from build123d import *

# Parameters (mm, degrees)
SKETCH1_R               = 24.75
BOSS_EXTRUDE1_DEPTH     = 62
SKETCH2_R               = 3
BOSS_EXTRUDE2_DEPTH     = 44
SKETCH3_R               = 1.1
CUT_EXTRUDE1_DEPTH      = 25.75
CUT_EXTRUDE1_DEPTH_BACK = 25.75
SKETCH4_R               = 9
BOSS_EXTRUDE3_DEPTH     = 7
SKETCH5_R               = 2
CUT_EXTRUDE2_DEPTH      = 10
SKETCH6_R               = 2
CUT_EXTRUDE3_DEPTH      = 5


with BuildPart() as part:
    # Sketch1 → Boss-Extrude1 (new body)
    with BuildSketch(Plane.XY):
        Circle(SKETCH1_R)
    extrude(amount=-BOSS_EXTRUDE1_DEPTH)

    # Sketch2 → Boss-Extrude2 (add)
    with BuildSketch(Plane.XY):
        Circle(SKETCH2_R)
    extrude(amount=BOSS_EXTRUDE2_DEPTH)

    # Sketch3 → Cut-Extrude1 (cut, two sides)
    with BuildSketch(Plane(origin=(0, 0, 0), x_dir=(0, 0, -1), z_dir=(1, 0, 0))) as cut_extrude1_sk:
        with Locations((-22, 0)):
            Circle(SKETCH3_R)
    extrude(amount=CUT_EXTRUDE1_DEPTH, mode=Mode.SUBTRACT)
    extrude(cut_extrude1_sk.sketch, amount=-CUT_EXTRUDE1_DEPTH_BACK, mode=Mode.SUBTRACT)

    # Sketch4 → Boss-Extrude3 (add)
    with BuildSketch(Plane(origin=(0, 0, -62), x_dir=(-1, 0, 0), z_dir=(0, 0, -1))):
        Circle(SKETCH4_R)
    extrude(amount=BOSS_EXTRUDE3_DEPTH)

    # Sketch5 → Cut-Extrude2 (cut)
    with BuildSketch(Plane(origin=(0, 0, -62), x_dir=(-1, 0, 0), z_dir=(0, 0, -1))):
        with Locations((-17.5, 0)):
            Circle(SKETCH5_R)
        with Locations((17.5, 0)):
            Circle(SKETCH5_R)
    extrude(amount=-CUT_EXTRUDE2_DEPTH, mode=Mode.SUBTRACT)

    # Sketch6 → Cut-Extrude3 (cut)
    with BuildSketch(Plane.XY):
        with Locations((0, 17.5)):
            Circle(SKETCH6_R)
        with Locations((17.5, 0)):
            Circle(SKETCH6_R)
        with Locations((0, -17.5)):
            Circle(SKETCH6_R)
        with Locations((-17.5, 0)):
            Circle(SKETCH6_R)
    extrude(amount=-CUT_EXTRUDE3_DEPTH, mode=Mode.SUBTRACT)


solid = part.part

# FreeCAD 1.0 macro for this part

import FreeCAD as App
import Part
import Sketcher
from FreeCAD import Vector

doc = App.newDocument("Part")
body = doc.addObject("PartDesign::Body", "Body")

# Sketch on XY plane
sketch1 = body.newObject("Sketcher::SketchObject", "Sketch")
sketch1.AttachmentSupport = (doc.getObject("XY_Plane"), [""])
sketch1.MapMode = "FlatFace"
sketch1.addGeometry(Part.Circle(Vector(0, 0, 0), Vector(0, 0, 1), 25), False)
sketch1.addConstraint(Sketcher.Constraint("Coincident", 0, 3, -1, 1))
sketch1.addConstraint(Sketcher.Constraint("Diameter", 0, 49.5))
pad1 = body.newObject("PartDesign::Pad", "Pad")
pad1.Profile = sketch1
pad1.Length = 62
pad1.Reversed = True

# Sketch on XY plane
sketch2 = body.newObject("Sketcher::SketchObject", "Sketch001")
sketch2.AttachmentSupport = (doc.getObject("XY_Plane"), [""])
sketch2.MapMode = "FlatFace"
sketch2.addGeometry(Part.Circle(Vector(0, 0, 0), Vector(0, 0, 1), 3), False)
sketch2.addConstraint(Sketcher.Constraint("Coincident", 0, 3, -1, 1))
sketch2.addConstraint(Sketcher.Constraint("Diameter", 0, 6.0))
pad2 = body.newObject("PartDesign::Pad", "Pad001")
pad2.Profile = sketch2
pad2.Length = 44

# Sketch on YZ plane
sketch3 = body.newObject("Sketcher::SketchObject", "Sketch002")
sketch3.AttachmentSupport = (doc.getObject("YZ_Plane"), [""])
sketch3.MapMode = "FlatFace"
sketch3.addGeometry(Part.Circle(Vector(0, 22, 0), Vector(0, 0, 1), 1.1), False)
sketch3.addConstraint(Sketcher.Constraint("PointOnObject", 0, 3, -2))
sketch3.addConstraint(Sketcher.Constraint("Diameter", 0, 2.2))
sketch3.addConstraint(Sketcher.Constraint("DistanceY", -1, 1, 0, 3, 22.0))
pocket1 = body.newObject("PartDesign::Pocket", "Pocket")
pocket1.Profile = sketch3
pocket1.Type = "ThroughAll"
pocket1.Midplane = True

# Sketch on XY plane
sketch4 = body.newObject("Sketcher::SketchObject", "Sketch003")
sketch4.AttachmentSupport = (doc.getObject("XY_Plane"), [""])
sketch4.MapMode = "FlatFace"
sketch4.AttachmentOffset = App.Placement(Vector(0, 0, -62), App.Rotation())
sketch4.addGeometry(Part.Circle(Vector(0, 0, 0), Vector(0, 0, 1), 9), False)
sketch4.addConstraint(Sketcher.Constraint("Coincident", 0, 3, -1, 1))
sketch4.addConstraint(Sketcher.Constraint("Diameter", 0, 18.0))
pad3 = body.newObject("PartDesign::Pad", "Pad002")
pad3.Profile = sketch4
pad3.Length = 7
pad3.Reversed = True

# Sketch on XY plane
sketch5 = body.newObject("Sketcher::SketchObject", "Sketch004")
sketch5.AttachmentSupport = (doc.getObject("XY_Plane"), [""])
sketch5.MapMode = "FlatFace"
sketch5.AttachmentOffset = App.Placement(Vector(0, 0, -62), App.Rotation())
sketch5.addGeometry(Part.Circle(Vector(17.5, 0, 0), Vector(0, 0, 1), 2), False)
sketch5.addGeometry(Part.Circle(Vector(-17.5, 0, 0), Vector(0, 0, 1), 2), False)
sketch5.addConstraint(Sketcher.Constraint("Equal", 0, 1))
sketch5.addConstraint(Sketcher.Constraint("Symmetric", 0, 3, 1, 3, -1, 1))
sketch5.addConstraint(Sketcher.Constraint("PointOnObject", 0, 3, -1))
sketch5.addConstraint(Sketcher.Constraint("Diameter", 0, 4.0))
sketch5.addConstraint(Sketcher.Constraint("DistanceX", 1, 3, 0, 3, 35.0))
pocket2 = body.newObject("PartDesign::Pocket", "Pocket001")
pocket2.Profile = sketch5
pocket2.Length = 10
pocket2.Reversed = True

# Sketch on XY plane
sketch6 = body.newObject("Sketcher::SketchObject", "Sketch005")
sketch6.AttachmentSupport = (doc.getObject("XY_Plane"), [""])
sketch6.MapMode = "FlatFace"
sketch6.addGeometry(Part.Circle(Vector(0, 17.5, 0), Vector(0, 0, 1), 2), False)
sketch6.addGeometry(Part.Circle(Vector(17.5, 0, 0), Vector(0, 0, 1), 2), False)
sketch6.addGeometry(Part.Circle(Vector(0, -17.5, 0), Vector(0, 0, 1), 2), False)
sketch6.addGeometry(Part.Circle(Vector(-17.5, 0, 0), Vector(0, 0, 1), 2), False)
sketch6.addConstraint(Sketcher.Constraint("Equal", 0, 1))
sketch6.addConstraint(Sketcher.Constraint("Equal", 1, 2))
sketch6.addConstraint(Sketcher.Constraint("Equal", 2, 3))
sketch6.addConstraint(Sketcher.Constraint("Symmetric", 0, 3, 2, 3, -1, 1))
sketch6.addConstraint(Sketcher.Constraint("Symmetric", 1, 3, 3, 3, -1, 1))
sketch6.addConstraint(Sketcher.Constraint("PointOnObject", 0, 3, -2))
sketch6.addConstraint(Sketcher.Constraint("PointOnObject", 1, 3, -1))
sketch6.addConstraint(Sketcher.Constraint("Diameter", 0, 4.0))
sketch6.addConstraint(Sketcher.Constraint("DistanceY", 2, 3, 0, 3, 35.0))
sketch6.addConstraint(Sketcher.Constraint("DistanceX", 3, 3, 1, 3, 35.0))
pocket3 = body.newObject("PartDesign::Pocket", "Pocket002")
pocket3.Profile = sketch6
pocket3.Length = 5

doc.recompute()
